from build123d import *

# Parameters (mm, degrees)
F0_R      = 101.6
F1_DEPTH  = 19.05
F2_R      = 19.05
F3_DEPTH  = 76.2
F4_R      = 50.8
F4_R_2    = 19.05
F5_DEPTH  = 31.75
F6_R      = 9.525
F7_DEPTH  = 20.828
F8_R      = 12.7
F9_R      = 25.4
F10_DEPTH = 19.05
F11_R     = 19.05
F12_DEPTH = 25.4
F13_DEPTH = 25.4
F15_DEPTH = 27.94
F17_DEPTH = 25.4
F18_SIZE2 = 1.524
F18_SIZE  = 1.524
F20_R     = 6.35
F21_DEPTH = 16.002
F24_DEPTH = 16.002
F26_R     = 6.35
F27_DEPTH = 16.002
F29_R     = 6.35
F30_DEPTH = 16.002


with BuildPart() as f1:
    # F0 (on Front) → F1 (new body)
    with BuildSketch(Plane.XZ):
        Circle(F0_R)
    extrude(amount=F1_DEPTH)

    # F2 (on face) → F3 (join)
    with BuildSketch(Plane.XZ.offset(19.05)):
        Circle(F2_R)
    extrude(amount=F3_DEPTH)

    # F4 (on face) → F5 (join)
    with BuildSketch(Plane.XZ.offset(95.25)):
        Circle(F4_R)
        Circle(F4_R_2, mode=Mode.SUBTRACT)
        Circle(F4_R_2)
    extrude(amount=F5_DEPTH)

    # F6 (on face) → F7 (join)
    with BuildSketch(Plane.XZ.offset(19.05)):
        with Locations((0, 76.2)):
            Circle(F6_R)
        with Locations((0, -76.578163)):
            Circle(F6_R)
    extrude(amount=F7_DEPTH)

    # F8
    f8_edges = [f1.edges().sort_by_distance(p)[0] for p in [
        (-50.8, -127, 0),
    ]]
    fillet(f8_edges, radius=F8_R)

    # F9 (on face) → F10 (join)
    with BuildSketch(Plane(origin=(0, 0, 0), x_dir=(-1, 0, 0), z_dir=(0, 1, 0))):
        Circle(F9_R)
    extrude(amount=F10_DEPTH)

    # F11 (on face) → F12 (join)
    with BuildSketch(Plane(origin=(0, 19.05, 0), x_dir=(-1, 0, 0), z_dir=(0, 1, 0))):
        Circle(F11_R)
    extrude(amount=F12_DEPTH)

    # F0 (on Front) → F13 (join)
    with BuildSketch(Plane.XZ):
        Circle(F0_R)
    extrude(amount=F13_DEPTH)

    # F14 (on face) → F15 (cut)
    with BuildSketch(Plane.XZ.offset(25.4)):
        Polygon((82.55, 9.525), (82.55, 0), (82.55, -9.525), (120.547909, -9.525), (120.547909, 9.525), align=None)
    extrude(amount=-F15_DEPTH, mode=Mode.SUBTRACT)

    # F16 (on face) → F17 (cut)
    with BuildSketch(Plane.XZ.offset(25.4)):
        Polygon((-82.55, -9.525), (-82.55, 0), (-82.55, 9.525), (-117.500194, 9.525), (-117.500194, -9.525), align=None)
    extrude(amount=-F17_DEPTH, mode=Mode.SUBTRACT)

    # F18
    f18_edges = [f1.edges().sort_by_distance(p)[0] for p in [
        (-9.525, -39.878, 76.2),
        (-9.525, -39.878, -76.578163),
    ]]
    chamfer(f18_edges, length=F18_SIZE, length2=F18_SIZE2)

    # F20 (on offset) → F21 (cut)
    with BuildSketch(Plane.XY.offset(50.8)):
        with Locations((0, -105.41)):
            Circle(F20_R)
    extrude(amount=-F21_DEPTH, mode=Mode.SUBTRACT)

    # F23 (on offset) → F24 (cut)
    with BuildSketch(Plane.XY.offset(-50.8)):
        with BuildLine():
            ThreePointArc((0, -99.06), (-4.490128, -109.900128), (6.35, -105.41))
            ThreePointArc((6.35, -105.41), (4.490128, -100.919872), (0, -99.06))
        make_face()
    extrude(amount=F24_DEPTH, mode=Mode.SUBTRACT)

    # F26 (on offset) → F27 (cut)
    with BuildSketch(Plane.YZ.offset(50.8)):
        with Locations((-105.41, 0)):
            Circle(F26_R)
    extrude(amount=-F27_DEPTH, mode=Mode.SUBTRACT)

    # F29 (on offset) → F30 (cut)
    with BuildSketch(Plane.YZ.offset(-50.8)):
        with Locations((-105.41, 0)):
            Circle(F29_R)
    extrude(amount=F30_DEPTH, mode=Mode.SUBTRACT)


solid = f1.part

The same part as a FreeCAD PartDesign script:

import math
import FreeCAD as App
import Part
import Sketcher
from FreeCAD import Vector
Q = App.Units.Quantity


def edges_at(feature, points):
    """Names of the edges that pass closest to the given points."""
    edges = feature.Shape.Edges
    near = lambda p: min(range(len(edges)), key=lambda i: edges[i].distToShape(Part.Vertex(*p))[0])
    return sorted({f"Edge{near(p) + 1}" for p in points})


def add_polygon(sketch, points):
    """Adds a closed chain of lines whose ends are joined by coincident constraints."""
    first, n = sketch.GeometryCount, len(points)
    for a, b in zip(points, points[1:] + points[:1]):
        sketch.addGeometry(Part.LineSegment(App.Vector(*a, 0), App.Vector(*b, 0)), False)
    for i in range(n):
        sketch.addConstraint(Sketcher.Constraint("Coincident", first + i, 2, first + (i + 1) % n, 1))

doc = App.newDocument("Part")
params = doc.addObject("Spreadsheet::Sheet", "Params")
for row, (alias, value) in enumerate([
    ("sketch1_diameter", "8 in"),
    ("pad1_length", "0.75 in"),
    ("sketch2_diameter", "1.5 in"),
    ("pad2_length", "3 in"),
    ("sketch3_diameter", "4 in"),
    ("pad3_length", "1.25 in"),
    ("sketch4_diameter", "0.75 in"),
    ("pad4_length", "0.82 in"),
    ("fillet_radius", "0.5 in"),
    ("sketch5_diameter", "2 in"),
    ("pad5_length", "0.75 in"),
    ("sketch6_diameter", "1.5 in"),
    ("pad6_length", "1 in"),
    ("sketch7_diameter", "8 in"),
    ("pad7_length", "1 in"),
    ("sketch8_height", "0.75 in"),
    ("pocket1_length", "1.1 in"),
    ("sketch9_height", "0.75 in"),
    ("pocket2_length", "1 in"),
    ("chamfer_size", "0.06 in"),
    ("chamfer_size2", "0.06 in"),
    ("sketch10_diameter", "0.5 in"),
    ("pocket3_length", "0.63 in"),
    ("sketch11_radius", "0.25 in"),
    ("pocket4_length", "0.63 in"),
    ("sketch12_diameter", "0.5 in"),
    ("pocket5_length", "0.63 in"),
    ("sketch13_diameter", "0.5 in"),
    ("pocket6_length", "0.63 in"),
], start=1):
    params.set(f"A{row}", alias)
    params.set(f"B{row}", "=" + value)
    params.setAlias(f"B{row}", alias)

body = doc.addObject("PartDesign::Body", "Body")

# Sketch on XZ plane
sketch1 = doc.addObject("Sketcher::SketchObject", "Sketch")
body.addObject(sketch1)
sketch1.AttachmentSupport = (doc.XZ_Plane, [""])
sketch1.MapMode = "FlatFace"
sketch1.addGeometry(Part.Circle(Vector(0, 0, 0), Vector(0, 0, 1), 102), False)
sketch1.addConstraint([
    Sketcher.Constraint("Coincident", 0, 3, -1, 1),
    Sketcher.Constraint("Diameter", 0, Q("8 in")),
])
sketch1.setExpression("Constraints[1]", "Params.sketch1_diameter")
pad1 = doc.addObject("PartDesign::Pad", "Pad")
body.addObject(pad1)
pad1.Profile = sketch1
pad1.setExpression("Length", "Params.pad1_length")

# Sketch on XZ plane
sketch2 = doc.addObject("Sketcher::SketchObject", "Sketch001")
body.addObject(sketch2)
sketch2.AttachmentSupport = (doc.XZ_Plane, [""])
sketch2.MapMode = "FlatFace"
sketch2.AttachmentOffset = App.Placement(Vector(0, 0, 0.75 * 25.4), App.Rotation())
sketch2.addGeometry(Part.Circle(Vector(0, 0, 0), Vector(0, 0, 1), 19), False)
sketch2.addConstraint([
    Sketcher.Constraint("Coincident", 0, 3, -1, 1),
    Sketcher.Constraint("Diameter", 0, Q("1.5 in")),
])
sketch2.setExpression("Constraints[1]", "Params.sketch2_diameter")
pad2 = doc.addObject("PartDesign::Pad", "Pad001")
body.addObject(pad2)
pad2.Profile = sketch2
pad2.setExpression("Length", "Params.pad2_length")

# Sketch on XZ plane
sketch3 = doc.addObject("Sketcher::SketchObject", "Sketch002")
body.addObject(sketch3)
sketch3.AttachmentSupport = (doc.XZ_Plane, [""])
sketch3.MapMode = "FlatFace"
sketch3.AttachmentOffset = App.Placement(Vector(0, 0, 3.75 * 25.4), App.Rotation())
sketch3.addGeometry(Part.Circle(Vector(0, 0, 0), Vector(0, 0, 1), 51), False)
sketch3.addConstraint([
    Sketcher.Constraint("Coincident", 0, 3, -1, 1),
    Sketcher.Constraint("Diameter", 0, Q("4 in")),
])
sketch3.setExpression("Constraints[1]", "Params.sketch3_diameter")
pad3 = doc.addObject("PartDesign::Pad", "Pad002")
body.addObject(pad3)
pad3.Profile = sketch3
pad3.setExpression("Length", "Params.pad3_length")

# Sketch on XZ plane
sketch4 = doc.addObject("Sketcher::SketchObject", "Sketch003")
body.addObject(sketch4)
sketch4.AttachmentSupport = (doc.XZ_Plane, [""])
sketch4.MapMode = "FlatFace"
sketch4.AttachmentOffset = App.Placement(Vector(0, 0, 0.75 * 25.4), App.Rotation())
sketch4.addGeometry([
    Part.Circle(Vector(0, 76, 0), Vector(0, 0, 1), 10),
    Part.Circle(Vector(0, -77, 0), Vector(0, 0, 1), 10),
], False)
sketch4.addConstraint([
    Sketcher.Constraint("Equal", 0, 1),
    Sketcher.Constraint("PointOnObject", 0, 3, -2),
    Sketcher.Constraint("PointOnObject", 1, 3, -2),
    Sketcher.Constraint("Diameter", 0, Q("0.75 in")),
    Sketcher.Constraint("DistanceY", -1, 1, 0, 3, Q("3 in")),
    Sketcher.Constraint("DistanceY", 1, 3, -1, 1, 76.578163),
])
sketch4.setExpression("Constraints[3]", "Params.sketch4_diameter")
pad4 = doc.addObject("PartDesign::Pad", "Pad003")
body.addObject(pad4)
pad4.Profile = sketch4
pad4.setExpression("Length", "Params.pad4_length")
doc.recompute()

fillet = doc.addObject("PartDesign::Fillet", "Fillet")
body.addObject(fillet)
fillet.Base = (pad4, edges_at(pad4, [(-50.8, -127, 0)]))
fillet.setExpression("Radius", "Params.fillet_radius")

# Sketch on XZ plane
sketch5 = doc.addObject("Sketcher::SketchObject", "Sketch004")
body.addObject(sketch5)
sketch5.AttachmentSupport = (doc.XZ_Plane, [""])
sketch5.MapMode = "FlatFace"
sketch5.addGeometry(Part.Circle(Vector(0, 0, 0), Vector(0, 0, 1), 25), False)
sketch5.addConstraint([
    Sketcher.Constraint("Coincident", 0, 3, -1, 1),
    Sketcher.Constraint("Diameter", 0, Q("2 in")),
])
sketch5.setExpression("Constraints[1]", "Params.sketch5_diameter")
pad5 = doc.addObject("PartDesign::Pad", "Pad004")
body.addObject(pad5)
pad5.Profile = sketch5
pad5.setExpression("Length", "Params.pad5_length")
pad5.Reversed = True

# Sketch on XZ plane
sketch6 = doc.addObject("Sketcher::SketchObject", "Sketch005")
body.addObject(sketch6)
sketch6.AttachmentSupport = (doc.XZ_Plane, [""])
sketch6.MapMode = "FlatFace"
sketch6.AttachmentOffset = App.Placement(Vector(0, 0, -0.75 * 25.4), App.Rotation())
sketch6.addGeometry(Part.Circle(Vector(0, 0, 0), Vector(0, 0, 1), 19), False)
sketch6.addConstraint([
    Sketcher.Constraint("Coincident", 0, 3, -1, 1),
    Sketcher.Constraint("Diameter", 0, Q("1.5 in")),
])
sketch6.setExpression("Constraints[1]", "Params.sketch6_diameter")
pad6 = doc.addObject("PartDesign::Pad", "Pad005")
body.addObject(pad6)
pad6.Profile = sketch6
pad6.setExpression("Length", "Params.pad6_length")
pad6.Reversed = True

# Sketch on XZ plane
sketch7 = doc.addObject("Sketcher::SketchObject", "Sketch006")
body.addObject(sketch7)
sketch7.AttachmentSupport = (doc.XZ_Plane, [""])
sketch7.MapMode = "FlatFace"
sketch7.addGeometry(Part.Circle(Vector(0, 0, 0), Vector(0, 0, 1), 102), False)
sketch7.addConstraint([
    Sketcher.Constraint("Coincident", 0, 3, -1, 1),
    Sketcher.Constraint("Diameter", 0, Q("8 in")),
])
sketch7.setExpression("Constraints[1]", "Params.sketch7_diameter")
pad7 = doc.addObject("PartDesign::Pad", "Pad006")
body.addObject(pad7)
pad7.Profile = sketch7
pad7.setExpression("Length", "Params.pad7_length")

# Sketch on XZ plane
sketch8 = doc.addObject("Sketcher::SketchObject", "Sketch007")
body.addObject(sketch8)
sketch8.AttachmentSupport = (doc.XZ_Plane, [""])
sketch8.MapMode = "FlatFace"
sketch8.AttachmentOffset = App.Placement(Vector(0, 0, 1 * 25.4), App.Rotation())
add_polygon(sketch8, [(83, 10), (83, -10), (121, -10), (121, 10)])  # lines 0-3
sketch8.addConstraint([
    Sketcher.Constraint("Vertical", 0),
    Sketcher.Constraint("Horizontal", 1),
    Sketcher.Constraint("Vertical", 2),
    Sketcher.Constraint("Horizontal", 3),
    Sketcher.Constraint("DistanceY", 0, 2, 0, 1, Q("0.75 in")),
    Sketcher.Constraint("DistanceX", -1, 1, 0, 2, Q("3.25 in")),
    Sketcher.Constraint("DistanceY", 0, 2, -1, 1, Q("0.375 in")),
    Sketcher.Constraint("DistanceX", 1, 1, 1, 2, 37.997909),
])
sketch8.setExpression("Constraints[8]", "Params.sketch8_height")
pocket1 = doc.addObject("PartDesign::Pocket", "Pocket")
body.addObject(pocket1)
pocket1.Profile = sketch8
pocket1.setExpression("Length", "Params.pocket1_length")

# Sketch on XZ plane
sketch9 = doc.addObject("Sketcher::SketchObject", "Sketch008")
body.addObject(sketch9)
sketch9.AttachmentSupport = (doc.XZ_Plane, [""])
sketch9.MapMode = "FlatFace"
sketch9.AttachmentOffset = App.Placement(Vector(0, 0, 1 * 25.4), App.Rotation())
add_polygon(sketch9, [(-83, -10), (-83, 10), (-118, 10), (-118, -10)])  # lines 0-3
sketch9.addConstraint([
    Sketcher.Constraint("Vertical", 0),
    Sketcher.Constraint("Horizontal", 1),
    Sketcher.Constraint("Vertical", 2),
    Sketcher.Constraint("Horizontal", 3),
    Sketcher.Constraint("DistanceY", 0, 1, 0, 2, Q("0.75 in")),
    Sketcher.Constraint("DistanceX", 0, 2, -1, 1, Q("3.25 in")),
    Sketcher.Constraint("DistanceY", -1, 1, 0, 2, Q("0.375 in")),
    Sketcher.Constraint("DistanceX", 1, 2, 1, 1, 34.950194),
])
sketch9.setExpression("Constraints[8]", "Params.sketch9_height")
pocket2 = doc.addObject("PartDesign::Pocket", "Pocket001")
body.addObject(pocket2)
pocket2.Profile = sketch9
pocket2.setExpression("Length", "Params.pocket2_length")
doc.recompute()

chamfer = doc.addObject("PartDesign::Chamfer", "Chamfer")
body.addObject(chamfer)
chamfer.Base = (pocket2, edges_at(pocket2, [(-9.525, -39.878, 76.2), (-9.525, -39.878, -76.578)]))
chamfer.ChamferType = "Two distances"
chamfer.setExpression("Size", "Params.chamfer_size")
chamfer.setExpression("Size2", "Params.chamfer_size2")

# Sketch on XY plane
sketch10 = doc.addObject("Sketcher::SketchObject", "Sketch009")
body.addObject(sketch10)
sketch10.AttachmentSupport = (doc.XY_Plane, [""])
sketch10.MapMode = "FlatFace"
sketch10.AttachmentOffset = App.Placement(Vector(0, 0, 2 * 25.4), App.Rotation())
sketch10.addGeometry(Part.Circle(Vector(0, -105, 0), Vector(0, 0, 1), 6), False)
sketch10.addConstraint([
    Sketcher.Constraint("PointOnObject", 0, 3, -2),
    Sketcher.Constraint("Diameter", 0, Q("0.5 in")),
    Sketcher.Constraint("DistanceY", 0, 3, -1, 1, Q("4.15 in")),
])
sketch10.setExpression("Constraints[1]", "Params.sketch10_diameter")
pocket3 = doc.addObject("PartDesign::Pocket", "Pocket002")
body.addObject(pocket3)
pocket3.Profile = sketch10
pocket3.setExpression("Length", "Params.pocket3_length")

# Sketch on XY plane
sketch11 = doc.addObject("Sketcher::SketchObject", "Sketch010")
body.addObject(sketch11)
sketch11.AttachmentSupport = (doc.XY_Plane, [""])
sketch11.MapMode = "FlatFace"
sketch11.AttachmentOffset = App.Placement(Vector(0, 0, -2 * 25.4), App.Rotation())
sketch11.addGeometry([
    Part.ArcOfCircle(Part.Circle(Vector(0, -105, 0), Vector(0, 0, 1), 6), math.radians(90), math.radians(360)),
    Part.ArcOfCircle(Part.Circle(Vector(0, -105, 0), Vector(0, 0, 1), 6), math.radians(0), math.radians(90)),
], False)
sketch11.addConstraint([
    Sketcher.Constraint("Tangent", 0, 1, 1, 2),
    Sketcher.Constraint("Coincident", 1, 1, 0, 2),
    Sketcher.Constraint("PointOnObject", 0, 3, -2),
    Sketcher.Constraint("PointOnObject", 0, 1, -2),
    Sketcher.Constraint("Horizontal", 0, 3, 1, 1),
    Sketcher.Constraint("Radius", 0, Q("0.25 in")),
    Sketcher.Constraint("DistanceY", 0, 1, -1, 1, Q("3.9 in")),
])
sketch11.setExpression("Constraints[5]", "Params.sketch11_radius")
pocket4 = doc.addObject("PartDesign::Pocket", "Pocket003")
body.addObject(pocket4)
pocket4.Profile = sketch11
pocket4.setExpression("Length", "Params.pocket4_length")
pocket4.Reversed = True

# Sketch on YZ plane
sketch12 = doc.addObject("Sketcher::SketchObject", "Sketch011")
body.addObject(sketch12)
sketch12.AttachmentSupport = (doc.YZ_Plane, [""])
sketch12.MapMode = "FlatFace"
sketch12.AttachmentOffset = App.Placement(Vector(0, 0, 2 * 25.4), App.Rotation())
sketch12.addGeometry(Part.Circle(Vector(-105, 0, 0), Vector(0, 0, 1), 6), False)
sketch12.addConstraint([
    Sketcher.Constraint("PointOnObject", 0, 3, -1),
    Sketcher.Constraint("Diameter", 0, Q("0.5 in")),
    Sketcher.Constraint("DistanceX", 0, 3, -1, 1, Q("4.15 in")),
])
sketch12.setExpression("Constraints[1]", "Params.sketch12_diameter")
pocket5 = doc.addObject("PartDesign::Pocket", "Pocket004")
body.addObject(pocket5)
pocket5.Profile = sketch12
pocket5.setExpression("Length", "Params.pocket5_length")

# Sketch on YZ plane
sketch13 = doc.addObject("Sketcher::SketchObject", "Sketch012")
body.addObject(sketch13)
sketch13.AttachmentSupport = (doc.YZ_Plane, [""])
sketch13.MapMode = "FlatFace"
sketch13.AttachmentOffset = App.Placement(Vector(0, 0, -2 * 25.4), App.Rotation())
sketch13.addGeometry(Part.Circle(Vector(-105, 0, 0), Vector(0, 0, 1), 6), False)
sketch13.addConstraint([
    Sketcher.Constraint("PointOnObject", 0, 3, -1),
    Sketcher.Constraint("Diameter", 0, Q("0.5 in")),
    Sketcher.Constraint("DistanceX", 0, 3, -1, 1, Q("4.15 in")),
])
sketch13.setExpression("Constraints[1]", "Params.sketch13_diameter")
pocket6 = doc.addObject("PartDesign::Pocket", "Pocket005")
body.addObject(pocket6)
pocket6.Profile = sketch13
pocket6.setExpression("Length", "Params.pocket6_length")
pocket6.Reversed = True

doc.recompute()
